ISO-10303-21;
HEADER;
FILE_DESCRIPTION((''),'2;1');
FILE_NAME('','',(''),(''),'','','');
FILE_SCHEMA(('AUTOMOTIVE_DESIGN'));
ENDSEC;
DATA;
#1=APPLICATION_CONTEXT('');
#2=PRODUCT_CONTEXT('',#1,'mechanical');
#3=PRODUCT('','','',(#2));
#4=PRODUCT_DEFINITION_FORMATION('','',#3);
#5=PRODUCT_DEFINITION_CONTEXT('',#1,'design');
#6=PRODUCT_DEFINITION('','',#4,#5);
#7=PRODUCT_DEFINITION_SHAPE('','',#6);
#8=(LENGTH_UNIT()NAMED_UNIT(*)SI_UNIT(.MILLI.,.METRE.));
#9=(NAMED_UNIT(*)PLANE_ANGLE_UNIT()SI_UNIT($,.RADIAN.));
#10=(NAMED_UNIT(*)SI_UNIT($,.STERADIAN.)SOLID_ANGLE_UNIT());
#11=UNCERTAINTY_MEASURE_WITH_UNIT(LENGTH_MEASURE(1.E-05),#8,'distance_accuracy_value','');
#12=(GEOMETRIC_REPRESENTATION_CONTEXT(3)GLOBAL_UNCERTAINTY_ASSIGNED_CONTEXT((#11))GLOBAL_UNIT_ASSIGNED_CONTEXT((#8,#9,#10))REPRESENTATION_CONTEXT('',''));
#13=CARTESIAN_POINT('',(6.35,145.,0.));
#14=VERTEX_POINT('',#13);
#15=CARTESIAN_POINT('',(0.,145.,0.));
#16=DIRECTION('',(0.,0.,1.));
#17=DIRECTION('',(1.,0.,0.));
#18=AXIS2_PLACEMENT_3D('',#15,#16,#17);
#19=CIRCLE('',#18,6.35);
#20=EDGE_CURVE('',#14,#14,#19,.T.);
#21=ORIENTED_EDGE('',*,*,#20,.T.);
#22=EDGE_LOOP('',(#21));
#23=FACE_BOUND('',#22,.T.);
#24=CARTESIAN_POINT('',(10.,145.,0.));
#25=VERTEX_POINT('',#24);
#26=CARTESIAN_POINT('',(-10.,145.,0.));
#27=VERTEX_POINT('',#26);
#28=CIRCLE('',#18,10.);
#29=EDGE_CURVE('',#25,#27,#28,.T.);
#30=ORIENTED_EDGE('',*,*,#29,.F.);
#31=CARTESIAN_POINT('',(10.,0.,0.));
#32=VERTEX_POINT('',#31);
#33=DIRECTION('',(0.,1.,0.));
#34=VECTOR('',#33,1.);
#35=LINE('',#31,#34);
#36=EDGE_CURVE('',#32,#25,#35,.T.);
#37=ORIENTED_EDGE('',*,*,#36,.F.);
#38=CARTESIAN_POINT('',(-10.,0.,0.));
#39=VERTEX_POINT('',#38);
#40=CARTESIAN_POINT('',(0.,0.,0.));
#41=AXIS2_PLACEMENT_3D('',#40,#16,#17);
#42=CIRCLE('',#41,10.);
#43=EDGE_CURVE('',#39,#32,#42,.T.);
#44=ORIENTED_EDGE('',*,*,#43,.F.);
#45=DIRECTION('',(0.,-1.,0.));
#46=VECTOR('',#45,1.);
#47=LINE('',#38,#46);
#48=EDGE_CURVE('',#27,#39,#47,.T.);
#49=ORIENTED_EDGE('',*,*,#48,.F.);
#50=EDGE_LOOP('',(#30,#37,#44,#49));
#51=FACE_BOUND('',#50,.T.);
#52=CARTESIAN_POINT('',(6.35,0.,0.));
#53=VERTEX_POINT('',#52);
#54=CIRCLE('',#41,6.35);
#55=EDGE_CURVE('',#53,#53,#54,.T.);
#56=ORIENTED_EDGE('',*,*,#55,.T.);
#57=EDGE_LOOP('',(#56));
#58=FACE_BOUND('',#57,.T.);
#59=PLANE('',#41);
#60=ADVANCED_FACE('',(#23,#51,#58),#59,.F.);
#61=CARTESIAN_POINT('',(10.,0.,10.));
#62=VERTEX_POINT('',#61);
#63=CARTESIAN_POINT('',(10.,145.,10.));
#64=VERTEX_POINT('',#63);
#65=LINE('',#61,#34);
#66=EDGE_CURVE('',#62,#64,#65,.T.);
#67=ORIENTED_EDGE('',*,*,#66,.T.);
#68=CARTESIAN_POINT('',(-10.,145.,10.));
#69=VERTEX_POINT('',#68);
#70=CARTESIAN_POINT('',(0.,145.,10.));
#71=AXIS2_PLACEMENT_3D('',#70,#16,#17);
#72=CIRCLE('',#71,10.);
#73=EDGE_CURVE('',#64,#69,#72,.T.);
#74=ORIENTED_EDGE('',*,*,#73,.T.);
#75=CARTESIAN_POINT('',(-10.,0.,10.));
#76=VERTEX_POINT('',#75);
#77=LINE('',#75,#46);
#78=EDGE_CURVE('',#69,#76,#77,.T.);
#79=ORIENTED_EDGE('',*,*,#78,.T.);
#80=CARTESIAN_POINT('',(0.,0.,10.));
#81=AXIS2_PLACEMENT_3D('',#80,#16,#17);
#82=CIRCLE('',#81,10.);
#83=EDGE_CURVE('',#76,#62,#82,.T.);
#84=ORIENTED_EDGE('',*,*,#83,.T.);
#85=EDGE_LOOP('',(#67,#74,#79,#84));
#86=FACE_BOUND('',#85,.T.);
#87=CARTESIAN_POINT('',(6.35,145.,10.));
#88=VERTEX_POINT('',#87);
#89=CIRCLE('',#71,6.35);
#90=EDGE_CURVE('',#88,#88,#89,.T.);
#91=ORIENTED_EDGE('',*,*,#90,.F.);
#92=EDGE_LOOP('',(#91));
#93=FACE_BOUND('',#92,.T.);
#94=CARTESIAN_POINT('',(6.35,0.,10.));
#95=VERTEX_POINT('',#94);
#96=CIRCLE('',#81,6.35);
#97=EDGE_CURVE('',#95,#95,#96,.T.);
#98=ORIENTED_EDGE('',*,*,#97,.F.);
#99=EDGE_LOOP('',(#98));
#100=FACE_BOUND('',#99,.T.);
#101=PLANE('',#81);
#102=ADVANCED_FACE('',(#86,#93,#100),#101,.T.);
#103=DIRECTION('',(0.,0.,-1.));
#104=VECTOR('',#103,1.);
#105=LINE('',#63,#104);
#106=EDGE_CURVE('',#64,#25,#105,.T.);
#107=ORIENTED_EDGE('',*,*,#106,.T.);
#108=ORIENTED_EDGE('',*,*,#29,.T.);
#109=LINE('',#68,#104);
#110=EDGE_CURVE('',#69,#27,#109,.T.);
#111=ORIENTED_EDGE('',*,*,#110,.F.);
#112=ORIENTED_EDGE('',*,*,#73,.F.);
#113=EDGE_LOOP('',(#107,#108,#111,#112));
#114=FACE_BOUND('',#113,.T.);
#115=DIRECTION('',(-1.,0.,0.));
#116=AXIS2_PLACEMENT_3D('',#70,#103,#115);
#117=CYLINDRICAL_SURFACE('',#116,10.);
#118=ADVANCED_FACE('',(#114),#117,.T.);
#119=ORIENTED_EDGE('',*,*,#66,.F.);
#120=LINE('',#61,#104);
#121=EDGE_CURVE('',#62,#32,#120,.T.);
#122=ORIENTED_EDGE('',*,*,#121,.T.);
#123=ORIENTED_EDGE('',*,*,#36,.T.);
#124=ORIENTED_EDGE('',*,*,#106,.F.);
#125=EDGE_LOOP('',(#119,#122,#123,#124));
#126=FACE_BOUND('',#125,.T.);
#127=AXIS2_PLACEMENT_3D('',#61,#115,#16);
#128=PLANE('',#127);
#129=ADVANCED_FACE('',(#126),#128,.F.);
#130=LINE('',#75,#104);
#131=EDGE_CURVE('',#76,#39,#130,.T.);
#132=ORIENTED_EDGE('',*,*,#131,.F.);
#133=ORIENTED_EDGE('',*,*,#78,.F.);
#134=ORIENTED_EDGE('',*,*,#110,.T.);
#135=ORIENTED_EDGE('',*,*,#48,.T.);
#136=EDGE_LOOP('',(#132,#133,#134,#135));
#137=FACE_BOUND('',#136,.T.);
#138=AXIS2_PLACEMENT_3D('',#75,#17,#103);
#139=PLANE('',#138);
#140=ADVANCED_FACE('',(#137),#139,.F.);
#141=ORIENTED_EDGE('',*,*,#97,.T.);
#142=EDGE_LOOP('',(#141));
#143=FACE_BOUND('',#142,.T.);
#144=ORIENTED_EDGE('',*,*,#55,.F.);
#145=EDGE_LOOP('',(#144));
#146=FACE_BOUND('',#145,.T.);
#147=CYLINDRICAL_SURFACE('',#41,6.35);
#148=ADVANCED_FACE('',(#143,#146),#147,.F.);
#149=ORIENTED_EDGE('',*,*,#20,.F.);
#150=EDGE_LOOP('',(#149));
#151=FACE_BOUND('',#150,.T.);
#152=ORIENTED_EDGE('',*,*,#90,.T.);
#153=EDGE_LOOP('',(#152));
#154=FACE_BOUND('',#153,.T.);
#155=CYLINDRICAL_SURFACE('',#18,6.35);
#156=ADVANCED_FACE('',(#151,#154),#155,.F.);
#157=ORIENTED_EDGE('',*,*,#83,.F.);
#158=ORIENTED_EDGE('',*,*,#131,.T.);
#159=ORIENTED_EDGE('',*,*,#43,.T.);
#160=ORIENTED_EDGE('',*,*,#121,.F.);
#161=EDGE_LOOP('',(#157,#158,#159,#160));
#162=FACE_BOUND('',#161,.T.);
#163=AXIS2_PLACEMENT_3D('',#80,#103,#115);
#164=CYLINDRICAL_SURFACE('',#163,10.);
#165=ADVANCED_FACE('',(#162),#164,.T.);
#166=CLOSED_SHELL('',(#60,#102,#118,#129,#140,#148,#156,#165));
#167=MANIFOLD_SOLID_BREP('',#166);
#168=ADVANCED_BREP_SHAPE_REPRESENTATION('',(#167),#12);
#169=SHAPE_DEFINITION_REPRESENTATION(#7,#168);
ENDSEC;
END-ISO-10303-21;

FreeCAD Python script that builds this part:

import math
import FreeCAD as App
import Part
import Sketcher

doc = App.newDocument("Part")
body = doc.addObject("PartDesign::Body", "Body")

sketch1 = body.newObject("Sketcher::SketchObject", "Sketch")
sketch1.AttachmentSupport = (doc.getObject("XY_Plane"), [""])
sketch1.MapMode = "FlatFace"
sketch1.addGeometry([
    Part.LineSegment(App.Vector(-10, 145, 0), App.Vector(-10, 0, 0)),
    Part.ArcOfCircle(Part.Circle(App.Vector(0, 0, 0), App.Vector(0, 0, 1), 10), math.radians(180), math.radians(360)),
    Part.LineSegment(App.Vector(10, 0, 0), App.Vector(10, 145, 0)),
    Part.ArcOfCircle(Part.Circle(App.Vector(0, 145, 0), App.Vector(0, 0, 1), 10), math.radians(0), math.radians(180)),
], False)
sketch1.addConstraint([
    Sketcher.Constraint("Tangent", 0, 2, 1, 1),
    Sketcher.Constraint("Tangent", 1, 2, 2, 1),
    Sketcher.Constraint("Tangent", 2, 2, 3, 1),
    Sketcher.Constraint("Tangent", 3, 2, 0, 1),
    Sketcher.Constraint("Vertical", 0),
    Sketcher.Constraint("Vertical", 2),
    Sketcher.Constraint("Coincident", 1, 3, -1, 1),
    Sketcher.Constraint("Radius", 1, 10.0),
    Sketcher.Constraint("DistanceY", 0, 2, 0, 1, 145.0),
])
pad1 = body.newObject("PartDesign::Pad", "Pad")
pad1.Profile = sketch1
pad1.Length = 10

sketch2 = body.newObject("Sketcher::SketchObject", "Sketch001")
sketch2.AttachmentSupport = (doc.getObject("XY_Plane"), [""])
sketch2.MapMode = "FlatFace"
sketch2.AttachmentOffset = App.Placement(App.Vector(0, 0, 10), App.Rotation())
sketch2.addGeometry([
    Part.Circle(App.Vector(0, 145, 0), App.Vector(0, 0, 1), 6),
    Part.Circle(App.Vector(0, 0, 0), App.Vector(0, 0, 1), 6),
], False)
sketch2.addConstraint([
    Sketcher.Constraint("Coincident", 1, 3, -1, 1),
    Sketcher.Constraint("Equal", 0, 1),
    Sketcher.Constraint("PointOnObject", 0, 3, -2),
    Sketcher.Constraint("Diameter", 0, 12.7),
    Sketcher.Constraint("DistanceY", -1, 1, 0, 3, 145.0),
])
pocket1 = body.newObject("PartDesign::Pocket", "Pocket")
pocket1.Profile = sketch2
pocket1.Type = "ThroughAll"

doc.recompute()
